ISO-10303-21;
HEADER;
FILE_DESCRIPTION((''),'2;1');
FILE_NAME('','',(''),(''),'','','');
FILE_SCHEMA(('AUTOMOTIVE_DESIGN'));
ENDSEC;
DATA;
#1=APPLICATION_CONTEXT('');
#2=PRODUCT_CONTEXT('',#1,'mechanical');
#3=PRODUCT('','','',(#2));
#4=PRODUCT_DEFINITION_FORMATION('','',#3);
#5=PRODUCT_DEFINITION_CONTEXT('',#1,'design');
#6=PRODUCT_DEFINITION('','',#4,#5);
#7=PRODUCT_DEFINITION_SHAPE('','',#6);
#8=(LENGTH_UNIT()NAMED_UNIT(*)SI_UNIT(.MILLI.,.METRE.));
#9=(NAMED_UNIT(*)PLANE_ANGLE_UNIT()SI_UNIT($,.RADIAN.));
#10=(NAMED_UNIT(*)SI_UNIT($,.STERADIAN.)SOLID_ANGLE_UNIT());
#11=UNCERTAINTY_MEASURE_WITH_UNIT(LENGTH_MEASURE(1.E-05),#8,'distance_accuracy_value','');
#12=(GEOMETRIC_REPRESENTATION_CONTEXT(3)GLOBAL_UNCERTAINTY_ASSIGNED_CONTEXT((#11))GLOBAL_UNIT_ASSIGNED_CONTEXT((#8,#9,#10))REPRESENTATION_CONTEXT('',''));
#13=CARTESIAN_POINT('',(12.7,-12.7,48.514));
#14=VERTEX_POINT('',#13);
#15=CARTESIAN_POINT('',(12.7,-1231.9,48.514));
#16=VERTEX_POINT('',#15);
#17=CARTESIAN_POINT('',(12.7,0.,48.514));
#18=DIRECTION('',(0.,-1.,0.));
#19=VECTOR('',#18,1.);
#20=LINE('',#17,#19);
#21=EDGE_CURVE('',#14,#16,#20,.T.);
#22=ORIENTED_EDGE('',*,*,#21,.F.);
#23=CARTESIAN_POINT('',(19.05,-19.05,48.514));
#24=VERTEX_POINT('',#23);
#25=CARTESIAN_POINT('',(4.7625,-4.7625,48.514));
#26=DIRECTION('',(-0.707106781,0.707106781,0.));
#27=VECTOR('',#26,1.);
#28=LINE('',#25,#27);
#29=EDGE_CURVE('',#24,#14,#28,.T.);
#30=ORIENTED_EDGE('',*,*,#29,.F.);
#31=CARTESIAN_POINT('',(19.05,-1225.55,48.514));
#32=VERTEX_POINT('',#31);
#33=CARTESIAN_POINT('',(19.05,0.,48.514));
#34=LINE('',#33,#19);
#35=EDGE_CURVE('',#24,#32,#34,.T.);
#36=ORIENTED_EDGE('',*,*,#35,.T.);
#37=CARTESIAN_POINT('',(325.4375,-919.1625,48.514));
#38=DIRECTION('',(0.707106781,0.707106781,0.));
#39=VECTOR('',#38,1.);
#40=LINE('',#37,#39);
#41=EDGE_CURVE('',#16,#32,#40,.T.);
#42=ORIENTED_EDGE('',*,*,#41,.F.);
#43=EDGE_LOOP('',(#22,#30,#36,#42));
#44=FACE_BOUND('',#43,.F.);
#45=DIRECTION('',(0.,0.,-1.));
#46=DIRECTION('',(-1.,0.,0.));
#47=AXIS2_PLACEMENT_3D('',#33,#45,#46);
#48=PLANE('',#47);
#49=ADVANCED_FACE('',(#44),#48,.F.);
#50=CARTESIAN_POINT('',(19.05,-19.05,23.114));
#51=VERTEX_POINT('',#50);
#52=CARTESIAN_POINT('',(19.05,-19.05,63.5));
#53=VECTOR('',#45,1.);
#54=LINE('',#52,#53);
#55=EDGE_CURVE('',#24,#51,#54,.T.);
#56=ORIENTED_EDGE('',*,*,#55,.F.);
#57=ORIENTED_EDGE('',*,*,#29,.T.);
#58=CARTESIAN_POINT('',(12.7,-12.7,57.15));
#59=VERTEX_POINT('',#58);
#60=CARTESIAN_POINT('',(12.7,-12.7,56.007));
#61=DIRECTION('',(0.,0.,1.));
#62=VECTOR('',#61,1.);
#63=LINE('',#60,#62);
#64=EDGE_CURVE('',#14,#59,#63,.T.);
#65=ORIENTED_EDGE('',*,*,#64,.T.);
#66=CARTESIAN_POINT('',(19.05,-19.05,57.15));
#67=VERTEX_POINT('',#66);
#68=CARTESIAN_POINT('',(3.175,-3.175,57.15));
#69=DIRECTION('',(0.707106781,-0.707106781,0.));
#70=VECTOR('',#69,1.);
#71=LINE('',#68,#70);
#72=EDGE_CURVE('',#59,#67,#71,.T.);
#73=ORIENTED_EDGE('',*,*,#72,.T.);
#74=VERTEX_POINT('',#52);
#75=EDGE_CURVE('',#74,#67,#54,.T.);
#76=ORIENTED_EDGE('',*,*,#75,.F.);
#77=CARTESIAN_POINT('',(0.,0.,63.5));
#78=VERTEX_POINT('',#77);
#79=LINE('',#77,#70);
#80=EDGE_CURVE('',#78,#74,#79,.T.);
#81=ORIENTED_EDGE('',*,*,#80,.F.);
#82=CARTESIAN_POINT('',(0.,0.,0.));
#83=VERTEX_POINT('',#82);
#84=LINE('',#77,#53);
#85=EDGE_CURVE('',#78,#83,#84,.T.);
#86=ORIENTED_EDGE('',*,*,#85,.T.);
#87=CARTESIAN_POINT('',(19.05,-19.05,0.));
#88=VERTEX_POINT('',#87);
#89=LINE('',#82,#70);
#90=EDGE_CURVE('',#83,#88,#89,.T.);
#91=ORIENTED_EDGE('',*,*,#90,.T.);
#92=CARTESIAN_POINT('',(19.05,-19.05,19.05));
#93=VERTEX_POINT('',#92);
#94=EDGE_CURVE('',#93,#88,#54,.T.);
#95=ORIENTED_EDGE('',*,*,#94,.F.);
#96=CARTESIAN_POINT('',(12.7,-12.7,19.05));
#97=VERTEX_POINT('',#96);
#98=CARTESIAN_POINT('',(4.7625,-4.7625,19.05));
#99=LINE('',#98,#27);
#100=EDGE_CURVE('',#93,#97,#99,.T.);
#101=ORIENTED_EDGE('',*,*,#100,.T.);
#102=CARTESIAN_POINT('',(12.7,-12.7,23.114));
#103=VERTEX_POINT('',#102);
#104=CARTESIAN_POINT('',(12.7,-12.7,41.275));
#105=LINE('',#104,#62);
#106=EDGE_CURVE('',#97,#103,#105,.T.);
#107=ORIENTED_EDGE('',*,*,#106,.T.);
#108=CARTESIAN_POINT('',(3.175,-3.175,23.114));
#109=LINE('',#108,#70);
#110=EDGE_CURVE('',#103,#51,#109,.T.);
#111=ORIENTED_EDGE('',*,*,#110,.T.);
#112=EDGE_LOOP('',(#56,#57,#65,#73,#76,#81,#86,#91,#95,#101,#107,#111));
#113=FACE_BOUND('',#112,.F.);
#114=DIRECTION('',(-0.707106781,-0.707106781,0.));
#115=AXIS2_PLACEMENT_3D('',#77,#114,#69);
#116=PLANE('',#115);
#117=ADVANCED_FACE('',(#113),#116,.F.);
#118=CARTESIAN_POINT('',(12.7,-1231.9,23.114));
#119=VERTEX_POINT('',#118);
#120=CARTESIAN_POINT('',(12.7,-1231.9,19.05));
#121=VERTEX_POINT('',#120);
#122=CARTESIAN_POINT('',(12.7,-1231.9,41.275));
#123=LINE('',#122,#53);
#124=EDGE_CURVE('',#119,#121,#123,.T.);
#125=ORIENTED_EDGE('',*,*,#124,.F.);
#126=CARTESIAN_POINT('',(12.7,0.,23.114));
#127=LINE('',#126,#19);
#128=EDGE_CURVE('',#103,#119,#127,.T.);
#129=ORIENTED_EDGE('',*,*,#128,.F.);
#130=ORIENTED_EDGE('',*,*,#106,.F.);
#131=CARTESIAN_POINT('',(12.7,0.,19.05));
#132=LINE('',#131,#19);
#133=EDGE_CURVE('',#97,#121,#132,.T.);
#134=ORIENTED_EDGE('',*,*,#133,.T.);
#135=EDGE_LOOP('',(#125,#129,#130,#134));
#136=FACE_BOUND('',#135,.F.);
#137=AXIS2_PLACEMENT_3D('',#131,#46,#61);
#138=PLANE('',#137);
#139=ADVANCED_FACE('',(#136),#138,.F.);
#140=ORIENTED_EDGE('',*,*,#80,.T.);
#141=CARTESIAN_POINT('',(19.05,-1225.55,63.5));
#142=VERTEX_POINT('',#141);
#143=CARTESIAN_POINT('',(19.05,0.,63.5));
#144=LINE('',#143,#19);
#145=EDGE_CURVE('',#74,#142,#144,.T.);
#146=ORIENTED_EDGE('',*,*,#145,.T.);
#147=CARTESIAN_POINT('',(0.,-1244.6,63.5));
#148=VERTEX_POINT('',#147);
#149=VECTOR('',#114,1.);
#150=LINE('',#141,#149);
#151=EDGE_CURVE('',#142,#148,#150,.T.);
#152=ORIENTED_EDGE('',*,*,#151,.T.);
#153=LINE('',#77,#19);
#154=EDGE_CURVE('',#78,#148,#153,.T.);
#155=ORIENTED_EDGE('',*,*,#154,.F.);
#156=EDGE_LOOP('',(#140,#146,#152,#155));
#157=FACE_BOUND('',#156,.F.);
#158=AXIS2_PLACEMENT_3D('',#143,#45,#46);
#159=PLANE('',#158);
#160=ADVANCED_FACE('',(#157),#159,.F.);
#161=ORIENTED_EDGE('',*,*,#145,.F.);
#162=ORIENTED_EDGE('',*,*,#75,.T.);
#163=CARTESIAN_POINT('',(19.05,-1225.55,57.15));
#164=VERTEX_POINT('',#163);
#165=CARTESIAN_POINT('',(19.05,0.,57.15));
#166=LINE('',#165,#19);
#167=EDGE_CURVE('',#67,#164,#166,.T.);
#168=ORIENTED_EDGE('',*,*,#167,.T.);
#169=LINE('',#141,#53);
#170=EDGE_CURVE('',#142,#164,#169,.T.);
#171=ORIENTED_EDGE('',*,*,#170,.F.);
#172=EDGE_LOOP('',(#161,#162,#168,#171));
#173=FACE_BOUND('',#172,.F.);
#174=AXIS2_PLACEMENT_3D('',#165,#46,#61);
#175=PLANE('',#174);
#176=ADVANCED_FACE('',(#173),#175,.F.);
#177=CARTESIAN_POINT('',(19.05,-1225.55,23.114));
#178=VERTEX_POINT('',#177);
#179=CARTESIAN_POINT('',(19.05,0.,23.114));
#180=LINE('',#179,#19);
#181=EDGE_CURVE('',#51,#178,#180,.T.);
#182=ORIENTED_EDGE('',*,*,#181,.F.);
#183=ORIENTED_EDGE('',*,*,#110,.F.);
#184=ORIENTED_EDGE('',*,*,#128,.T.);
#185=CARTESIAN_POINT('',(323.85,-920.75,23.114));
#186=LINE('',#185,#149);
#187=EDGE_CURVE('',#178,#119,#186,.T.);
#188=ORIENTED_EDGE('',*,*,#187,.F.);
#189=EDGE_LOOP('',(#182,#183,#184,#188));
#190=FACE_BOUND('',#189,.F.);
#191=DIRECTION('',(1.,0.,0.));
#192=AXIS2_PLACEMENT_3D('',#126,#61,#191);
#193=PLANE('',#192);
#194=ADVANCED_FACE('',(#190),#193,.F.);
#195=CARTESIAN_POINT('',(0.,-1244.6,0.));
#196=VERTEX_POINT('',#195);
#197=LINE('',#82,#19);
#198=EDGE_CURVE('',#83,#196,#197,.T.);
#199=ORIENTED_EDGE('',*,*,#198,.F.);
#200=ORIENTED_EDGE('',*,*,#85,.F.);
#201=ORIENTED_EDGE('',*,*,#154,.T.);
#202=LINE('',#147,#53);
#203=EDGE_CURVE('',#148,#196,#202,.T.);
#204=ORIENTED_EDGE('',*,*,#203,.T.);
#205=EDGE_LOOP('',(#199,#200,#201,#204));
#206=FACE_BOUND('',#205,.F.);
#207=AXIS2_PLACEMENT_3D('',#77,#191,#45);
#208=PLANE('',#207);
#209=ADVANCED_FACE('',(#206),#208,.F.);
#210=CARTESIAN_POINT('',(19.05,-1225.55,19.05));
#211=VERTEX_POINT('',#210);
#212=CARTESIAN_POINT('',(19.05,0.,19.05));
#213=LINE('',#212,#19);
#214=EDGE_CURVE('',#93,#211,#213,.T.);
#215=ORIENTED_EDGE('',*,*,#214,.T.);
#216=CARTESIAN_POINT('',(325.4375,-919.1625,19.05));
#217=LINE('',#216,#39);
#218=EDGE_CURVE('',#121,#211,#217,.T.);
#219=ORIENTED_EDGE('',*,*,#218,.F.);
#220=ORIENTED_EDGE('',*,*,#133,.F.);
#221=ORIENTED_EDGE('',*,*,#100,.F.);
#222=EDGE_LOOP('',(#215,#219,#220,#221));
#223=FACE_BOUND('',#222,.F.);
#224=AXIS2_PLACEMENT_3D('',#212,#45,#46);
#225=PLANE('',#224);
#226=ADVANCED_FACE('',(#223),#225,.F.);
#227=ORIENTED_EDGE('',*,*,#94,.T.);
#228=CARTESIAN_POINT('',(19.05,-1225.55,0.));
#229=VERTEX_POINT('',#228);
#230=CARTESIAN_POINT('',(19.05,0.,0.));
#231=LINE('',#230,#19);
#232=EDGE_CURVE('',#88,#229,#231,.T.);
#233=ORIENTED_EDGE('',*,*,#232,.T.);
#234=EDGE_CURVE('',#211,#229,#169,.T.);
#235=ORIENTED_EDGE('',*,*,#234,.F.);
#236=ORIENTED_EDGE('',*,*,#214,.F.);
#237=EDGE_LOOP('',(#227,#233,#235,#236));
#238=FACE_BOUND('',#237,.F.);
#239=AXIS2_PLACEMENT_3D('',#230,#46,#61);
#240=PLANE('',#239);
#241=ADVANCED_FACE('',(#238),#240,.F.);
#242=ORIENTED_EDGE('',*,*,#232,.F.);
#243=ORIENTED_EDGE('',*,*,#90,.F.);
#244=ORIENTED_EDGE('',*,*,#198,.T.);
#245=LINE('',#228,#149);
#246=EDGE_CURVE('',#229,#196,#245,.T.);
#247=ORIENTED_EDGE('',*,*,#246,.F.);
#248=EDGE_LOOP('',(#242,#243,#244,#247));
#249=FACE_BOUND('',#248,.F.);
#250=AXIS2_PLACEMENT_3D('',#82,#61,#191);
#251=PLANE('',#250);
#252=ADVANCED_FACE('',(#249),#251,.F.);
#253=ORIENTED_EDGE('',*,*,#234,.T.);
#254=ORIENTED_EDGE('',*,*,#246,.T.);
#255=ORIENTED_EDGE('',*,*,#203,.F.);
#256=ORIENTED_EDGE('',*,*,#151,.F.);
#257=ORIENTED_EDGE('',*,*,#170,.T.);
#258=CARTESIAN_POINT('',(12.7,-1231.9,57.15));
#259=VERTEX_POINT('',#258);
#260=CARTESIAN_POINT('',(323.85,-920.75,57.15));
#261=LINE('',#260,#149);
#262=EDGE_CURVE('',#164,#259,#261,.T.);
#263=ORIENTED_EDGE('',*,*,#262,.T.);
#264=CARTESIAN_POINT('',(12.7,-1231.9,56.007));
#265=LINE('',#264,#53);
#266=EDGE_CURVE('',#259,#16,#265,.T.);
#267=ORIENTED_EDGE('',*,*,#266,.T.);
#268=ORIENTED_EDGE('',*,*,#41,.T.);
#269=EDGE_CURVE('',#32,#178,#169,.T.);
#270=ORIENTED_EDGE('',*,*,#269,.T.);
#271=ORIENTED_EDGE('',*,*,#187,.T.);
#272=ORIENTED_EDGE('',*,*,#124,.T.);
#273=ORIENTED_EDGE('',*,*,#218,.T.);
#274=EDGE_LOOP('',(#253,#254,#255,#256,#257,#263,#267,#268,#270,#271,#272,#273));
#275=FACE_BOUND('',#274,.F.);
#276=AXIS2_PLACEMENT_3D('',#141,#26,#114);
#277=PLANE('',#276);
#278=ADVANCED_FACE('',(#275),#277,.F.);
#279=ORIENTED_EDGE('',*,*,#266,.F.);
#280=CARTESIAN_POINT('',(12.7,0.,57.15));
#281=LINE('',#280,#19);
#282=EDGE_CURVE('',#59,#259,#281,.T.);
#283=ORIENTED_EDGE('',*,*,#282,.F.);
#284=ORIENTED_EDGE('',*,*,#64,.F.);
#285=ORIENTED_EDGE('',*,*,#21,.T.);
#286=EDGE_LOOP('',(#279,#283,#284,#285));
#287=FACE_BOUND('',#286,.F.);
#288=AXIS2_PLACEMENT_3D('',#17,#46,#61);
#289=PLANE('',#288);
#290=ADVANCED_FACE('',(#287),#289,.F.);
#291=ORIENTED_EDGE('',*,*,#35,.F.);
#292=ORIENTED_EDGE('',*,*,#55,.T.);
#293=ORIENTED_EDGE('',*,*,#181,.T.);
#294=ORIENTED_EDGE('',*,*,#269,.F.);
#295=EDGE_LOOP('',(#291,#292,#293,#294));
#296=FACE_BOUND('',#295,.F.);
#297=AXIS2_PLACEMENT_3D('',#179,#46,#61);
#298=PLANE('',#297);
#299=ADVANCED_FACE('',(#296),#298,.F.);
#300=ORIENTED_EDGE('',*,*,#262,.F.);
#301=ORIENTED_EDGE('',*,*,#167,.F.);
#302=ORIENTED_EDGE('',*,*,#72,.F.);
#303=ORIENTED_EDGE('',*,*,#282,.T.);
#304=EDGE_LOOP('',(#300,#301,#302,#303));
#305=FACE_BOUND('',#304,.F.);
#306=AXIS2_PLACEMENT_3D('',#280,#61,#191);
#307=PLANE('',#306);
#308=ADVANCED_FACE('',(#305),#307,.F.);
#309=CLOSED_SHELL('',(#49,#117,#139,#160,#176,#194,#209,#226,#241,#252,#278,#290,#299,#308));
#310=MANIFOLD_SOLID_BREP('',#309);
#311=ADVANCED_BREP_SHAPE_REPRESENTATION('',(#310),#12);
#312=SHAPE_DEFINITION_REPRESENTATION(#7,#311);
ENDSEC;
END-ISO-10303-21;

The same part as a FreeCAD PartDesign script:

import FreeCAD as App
import Part
import Sketcher
Q = App.Units.Quantity

doc = App.newDocument("Part")
body = doc.addObject("PartDesign::Body", "Body")

# Sketch on XZ plane
sketch1 = body.newObject("Sketcher::SketchObject", "Sketch")
sketch1.AttachmentSupport = (doc.getObject("XZ_Plane"), [""])
sketch1.MapMode = "FlatFace"
sketch1.addGeometry(Part.LineSegment(App.Vector(19.1, 63.5, 0), App.Vector(0, 63.5, 0)), False)
sketch1.addGeometry(Part.LineSegment(App.Vector(0, 63.5, 0), App.Vector(0, 0, 0)), False)
sketch1.addGeometry(Part.LineSegment(App.Vector(0, 0, 0), App.Vector(19.1, 0, 0)), False)
sketch1.addGeometry(Part.LineSegment(App.Vector(19.1, 0, 0), App.Vector(19.1, 19.1, 0)), False)
sketch1.addGeometry(Part.LineSegment(App.Vector(19.1, 19.1, 0), App.Vector(12.7, 19.1, 0)), False)
sketch1.addGeometry(Part.LineSegment(App.Vector(12.7, 19.1, 0), App.Vector(12.7, 23.1, 0)), False)
sketch1.addGeometry(Part.LineSegment(App.Vector(12.7, 23.1, 0), App.Vector(19.1, 23.1, 0)), False)
sketch1.addGeometry(Part.LineSegment(App.Vector(19.1, 23.1, 0), App.Vector(19.1, 48.5, 0)), False)
sketch1.addGeometry(Part.LineSegment(App.Vector(19.1, 48.5, 0), App.Vector(12.7, 48.5, 0)), False)
sketch1.addGeometry(Part.LineSegment(App.Vector(12.7, 48.5, 0), App.Vector(12.7, 57.1, 0)), False)
sketch1.addGeometry(Part.LineSegment(App.Vector(12.7, 57.1, 0), App.Vector(19.1, 57.1, 0)), False)
sketch1.addGeometry(Part.LineSegment(App.Vector(19.1, 57.1, 0), App.Vector(19.1, 63.5, 0)), False)
sketch1.addConstraint(Sketcher.Constraint("Coincident", 0, 2, 1, 1))
sketch1.addConstraint(Sketcher.Constraint("Coincident", 1, 2, 2, 1))
sketch1.addConstraint(Sketcher.Constraint("Coincident", 2, 2, 3, 1))
sketch1.addConstraint(Sketcher.Constraint("Coincident", 3, 2, 4, 1))
sketch1.addConstraint(Sketcher.Constraint("Coincident", 4, 2, 5, 1))
sketch1.addConstraint(Sketcher.Constraint("Coincident", 5, 2, 6, 1))
sketch1.addConstraint(Sketcher.Constraint("Coincident", 6, 2, 7, 1))
sketch1.addConstraint(Sketcher.Constraint("Coincident", 7, 2, 8, 1))
sketch1.addConstraint(Sketcher.Constraint("Coincident", 8, 2, 9, 1))
sketch1.addConstraint(Sketcher.Constraint("Coincident", 9, 2, 10, 1))
sketch1.addConstraint(Sketcher.Constraint("Coincident", 10, 2, 11, 1))
sketch1.addConstraint(Sketcher.Constraint("Coincident", 11, 2, 0, 1))
sketch1.addConstraint(Sketcher.Constraint("Horizontal", 0))
sketch1.addConstraint(Sketcher.Constraint("Vertical", 1))
sketch1.addConstraint(Sketcher.Constraint("Horizontal", 2))
sketch1.addConstraint(Sketcher.Constraint("Vertical", 3))
sketch1.addConstraint(Sketcher.Constraint("Horizontal", 4))
sketch1.addConstraint(Sketcher.Constraint("Vertical", 5))
sketch1.addConstraint(Sketcher.Constraint("Horizontal", 6))
sketch1.addConstraint(Sketcher.Constraint("Vertical", 7))
sketch1.addConstraint(Sketcher.Constraint("Horizontal", 8))
sketch1.addConstraint(Sketcher.Constraint("Vertical", 9))
sketch1.addConstraint(Sketcher.Constraint("Horizontal", 10))
sketch1.addConstraint(Sketcher.Constraint("Vertical", 11))
sketch1.addConstraint(Sketcher.Constraint("Coincident", 1, 2, -1, 1))
sketch1.addConstraint(Sketcher.Constraint("Vertical", 3, 2, 6, 2))
sketch1.addConstraint(Sketcher.Constraint("Vertical", 5, 2, 8, 2))
sketch1.addConstraint(Sketcher.Constraint("Vertical", 7, 2, 10, 2))
sketch1.addConstraint(Sketcher.Constraint("Equal", 2, 3))
sketch1.addConstraint(Sketcher.Constraint("Equal", 10, 11))
sketch1.addConstraint(Sketcher.Constraint("DistanceY", 7, 1, 7, 2, Q("1 in")))
sketch1.addConstraint(Sketcher.Constraint("DistanceY", 1, 2, 1, 1, Q("2.5 in")))
sketch1.addConstraint(Sketcher.Constraint("DistanceX", 0, 2, 0, 1, Q("0.75 in")))
sketch1.addConstraint(Sketcher.Constraint("DistanceX", 4, 2, 4, 1, Q("0.25 in")))
sketch1.addConstraint(Sketcher.Constraint("DistanceY", 5, 1, 5, 2, Q("0.16 in")))
pad1 = body.newObject("PartDesign::Pad", "Pad")
pad1.Profile = sketch1
pad1.Length = Q("49 in")

# Sketch on XY plane
sketch2 = body.newObject("Sketcher::SketchObject", "Sketch001")
sketch2.AttachmentSupport = (doc.getObject("XY_Plane"), [""])
sketch2.MapMode = "FlatFace"
sketch2.AttachmentOffset = App.Placement(App.Vector(0, 0, 2.5 * 25.4), App.Rotation())
sketch2.addGeometry(Part.LineSegment(App.Vector(19, -1245, 0), App.Vector(19, -1226, 0)), False)
sketch2.addGeometry(Part.LineSegment(App.Vector(19, -1226, 0), App.Vector(0, -1245, 0)), False)
sketch2.addGeometry(Part.LineSegment(App.Vector(0, -1245, 0), App.Vector(19, -1245, 0)), False)
sketch2.addGeometry(Part.LineSegment(App.Vector(19, 0, 0), App.Vector(0, 0, 0)), False)
sketch2.addGeometry(Part.LineSegment(App.Vector(0, 0, 0), App.Vector(19, -19, 0)), False)
sketch2.addGeometry(Part.LineSegment(App.Vector(19, -19, 0), App.Vector(19, 0, 0)), False)
sketch2.addConstraint(Sketcher.Constraint("Coincident", 0, 2, 1, 1))
sketch2.addConstraint(Sketcher.Constraint("Coincident", 1, 2, 2, 1))
sketch2.addConstraint(Sketcher.Constraint("Coincident", 2, 2, 0, 1))
sketch2.addConstraint(Sketcher.Constraint("Coincident", 3, 2, 4, 1))
sketch2.addConstraint(Sketcher.Constraint("Coincident", 4, 2, 5, 1))
sketch2.addConstraint(Sketcher.Constraint("Coincident", 5, 2, 3, 1))
sketch2.addConstraint(Sketcher.Constraint("Vertical", 0))
sketch2.addConstraint(Sketcher.Constraint("Horizontal", 2))
sketch2.addConstraint(Sketcher.Constraint("Horizontal", 3))
sketch2.addConstraint(Sketcher.Constraint("Vertical", 5))
sketch2.addConstraint(Sketcher.Constraint("Coincident", 3, 2, -1, 1))
sketch2.addConstraint(Sketcher.Constraint("PointOnObject", 1, 2, -2))
sketch2.addConstraint(Sketcher.Constraint("Perpendicular", 1, 4))
sketch2.addConstraint(Sketcher.Constraint("Vertical", 2, 2, 4, 2))
sketch2.addConstraint(Sketcher.Constraint("Equal", 3, 0))
sketch2.addConstraint(Sketcher.Constraint("DistanceY", 1, 2, -1, 1, Q("49 in")))
sketch2.addConstraint(Sketcher.Constraint("DistanceX", 2, 1, 2, 2, Q("0.75 in")))
pocket1 = body.newObject("PartDesign::Pocket", "Pocket")
pocket1.Profile = sketch2
pocket1.Length = Q("2.5 in")

doc.recompute()
